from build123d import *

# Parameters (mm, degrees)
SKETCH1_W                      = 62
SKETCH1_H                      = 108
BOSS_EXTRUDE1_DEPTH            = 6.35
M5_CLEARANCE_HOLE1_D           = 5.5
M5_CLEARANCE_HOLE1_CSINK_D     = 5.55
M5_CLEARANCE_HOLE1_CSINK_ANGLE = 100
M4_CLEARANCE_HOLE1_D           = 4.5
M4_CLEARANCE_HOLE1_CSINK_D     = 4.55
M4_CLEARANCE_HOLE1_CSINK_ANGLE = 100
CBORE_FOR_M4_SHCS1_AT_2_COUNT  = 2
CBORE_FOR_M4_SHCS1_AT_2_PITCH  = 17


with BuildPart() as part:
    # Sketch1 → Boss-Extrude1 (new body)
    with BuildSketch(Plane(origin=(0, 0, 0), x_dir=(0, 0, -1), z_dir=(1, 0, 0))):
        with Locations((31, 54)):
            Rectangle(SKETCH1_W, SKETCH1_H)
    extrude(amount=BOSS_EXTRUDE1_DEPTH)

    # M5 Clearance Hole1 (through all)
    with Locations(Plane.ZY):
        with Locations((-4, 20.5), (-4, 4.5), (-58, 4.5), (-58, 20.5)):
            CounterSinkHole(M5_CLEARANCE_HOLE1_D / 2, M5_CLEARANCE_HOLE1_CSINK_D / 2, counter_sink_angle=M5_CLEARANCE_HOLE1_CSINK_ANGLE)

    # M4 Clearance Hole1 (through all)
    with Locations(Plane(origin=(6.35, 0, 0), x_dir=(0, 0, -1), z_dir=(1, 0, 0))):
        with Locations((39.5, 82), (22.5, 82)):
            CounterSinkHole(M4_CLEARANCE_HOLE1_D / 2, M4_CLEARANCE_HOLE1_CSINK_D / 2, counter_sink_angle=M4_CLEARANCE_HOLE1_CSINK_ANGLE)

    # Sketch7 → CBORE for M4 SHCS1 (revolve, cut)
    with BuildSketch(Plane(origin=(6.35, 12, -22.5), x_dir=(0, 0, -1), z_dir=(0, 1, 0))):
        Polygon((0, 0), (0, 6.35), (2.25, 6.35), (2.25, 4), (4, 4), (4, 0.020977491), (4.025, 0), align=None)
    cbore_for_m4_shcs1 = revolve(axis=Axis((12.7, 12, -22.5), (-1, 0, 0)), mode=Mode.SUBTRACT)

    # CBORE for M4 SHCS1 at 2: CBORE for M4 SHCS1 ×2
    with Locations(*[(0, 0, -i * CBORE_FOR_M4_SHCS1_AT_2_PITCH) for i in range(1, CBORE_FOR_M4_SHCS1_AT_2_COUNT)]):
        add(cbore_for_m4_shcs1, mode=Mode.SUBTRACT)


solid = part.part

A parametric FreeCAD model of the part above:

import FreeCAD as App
import Part
import Sketcher
from FreeCAD import Vector
Q = App.Units.Quantity


def add_polygon(sketch, points):
    """Adds a closed chain of lines whose ends are joined by coincident constraints."""
    first, n = sketch.GeometryCount, len(points)
    for a, b in zip(points, points[1:] + points[:1]):
        sketch.addGeometry(Part.LineSegment(App.Vector(*a, 0), App.Vector(*b, 0)), False)
    for i in range(n):
        sketch.addConstraint(Sketcher.Constraint("Coincident", first + i, 2, first + (i + 1) % n, 1))

doc = App.newDocument("Part")
body = doc.addObject("PartDesign::Body", "Body")

# Sketch on YZ plane
sketch1 = body.newObject("Sketcher::SketchObject", "Sketch")
sketch1.AttachmentSupport = (doc.getObject("YZ_Plane"), [""])
sketch1.MapMode = "FlatFace"
add_polygon(sketch1, [(108, 0), (0, 0), (0, -62), (108, -62)])  # lines 0-3
sketch1.addConstraint([
    Sketcher.Constraint("Horizontal", 0),
    Sketcher.Constraint("Vertical", 1),
    Sketcher.Constraint("Horizontal", 2),
    Sketcher.Constraint("Vertical", 3),
    Sketcher.Constraint("Coincident", 0, 2, -1, 1),
    Sketcher.Constraint("DistanceX", 0, 2, 0, 1, 108.0),
    Sketcher.Constraint("DistanceY", 1, 2, 1, 1, 62.0),
])
pad1 = body.newObject("PartDesign::Pad", "Pad")
pad1.Profile = sketch1
pad1.Length = 6.35

# Sketch on YZ plane
sketch2 = body.newObject("Sketcher::SketchObject", "Sketch001")
sketch2.AttachmentSupport = (doc.getObject("YZ_Plane"), [""])
sketch2.MapMode = "FlatFace"
sketch2.addGeometry([
    Part.Circle(Vector(20.5, -4, 0), Vector(0, 0, 1), 2.8),
    Part.Circle(Vector(4.5, -4, 0), Vector(0, 0, 1), 2.8),
    Part.Circle(Vector(4.5, -58, 0), Vector(0, 0, 1), 2.8),
    Part.Circle(Vector(20.5, -58, 0), Vector(0, 0, 1), 2.8),
], False)
sketch2.addConstraint([
    Sketcher.Constraint("Equal", 0, 1),
    Sketcher.Constraint("Equal", 1, 2),
    Sketcher.Constraint("Equal", 2, 3),
    Sketcher.Constraint("Horizontal", 0, 3, 1, 3),
    Sketcher.Constraint("Horizontal", 2, 3, 3, 3),
    Sketcher.Constraint("Vertical", 1, 3, 2, 3),
    Sketcher.Constraint("Vertical", 0, 3, 3, 3),
    Sketcher.Constraint("Diameter", 0, 5.5),
    Sketcher.Constraint("DistanceY", 0, 3, -1, 1, 4.0),
    Sketcher.Constraint("DistanceY", 2, 3, -1, 1, 58.0),
    Sketcher.Constraint("DistanceX", 1, 3, 0, 3, 16.0),
    Sketcher.Constraint("DistanceX", -1, 1, 0, 3, 20.5),
])
doc.recompute()
hole = body.newObject("PartDesign::Hole", "Hole")
hole.Profile = sketch2
hole.ThreadType = "None"
hole.Diameter = 5.5
hole.DepthType = "ThroughAll"
hole.HoleCutType = "Countersink"
hole.HoleCutDiameter = 5.55
hole.HoleCutCountersinkAngle = 100
hole.Reversed = True

# Sketch on YZ plane
sketch3 = body.newObject("Sketcher::SketchObject", "Sketch002")
sketch3.AttachmentSupport = (doc.getObject("YZ_Plane"), [""])
sketch3.MapMode = "FlatFace"
sketch3.AttachmentOffset = App.Placement(Vector(0, 0, 6.35), App.Rotation())
sketch3.addGeometry([
    Part.Circle(Vector(82, -39.5, 0), Vector(0, 0, 1), 2.2),
    Part.Circle(Vector(82, -22.5, 0), Vector(0, 0, 1), 2.2),
], False)
sketch3.addConstraint([
    Sketcher.Constraint("Equal", 0, 1),
    Sketcher.Constraint("Vertical", 0, 3, 1, 3),
    Sketcher.Constraint("Diameter", 0, 4.5),
    Sketcher.Constraint("DistanceX", -1, 1, 0, 3, 82.0),
    Sketcher.Constraint("DistanceY", 0, 3, 1, 3, 17.0),
    Sketcher.Constraint("DistanceY", 0, 3, -1, 1, 39.5),
])
doc.recompute()
hole2 = body.newObject("PartDesign::Hole", "Hole001")
hole2.Profile = sketch3
hole2.ThreadType = "None"
hole2.Diameter = 4.5
hole2.DepthType = "ThroughAll"
hole2.HoleCutType = "Countersink"
hole2.HoleCutDiameter = 4.55
hole2.HoleCutCountersinkAngle = 100

# Sketch on XZ plane
sketch4 = body.newObject("Sketcher::SketchObject", "Sketch003")
sketch4.AttachmentSupport = (doc.getObject("XZ_Plane"), [""])
sketch4.MapMode = "FlatFace"
sketch4.AttachmentOffset = App.Placement(Vector(0, 0, -12), App.Rotation())
add_polygon(sketch4, [(0, -22.5), (6.35, -22.5), (6.35, -26.525), (6.329, -26.5), (2.35, -26.5), (2.35, -24.75), (0, -24.75)])  # lines 0-6
sketch4.addGeometry(Part.LineSegment(Vector(6.35, -22.5, 0), Vector(0, -22.5, 0)), True)  # axis
sketch4.addConstraint([
    Sketcher.Constraint("Horizontal", 0),
    Sketcher.Constraint("Vertical", 1),
    Sketcher.Constraint("Horizontal", 3),
    Sketcher.Constraint("Vertical", 4),
    Sketcher.Constraint("Horizontal", 5),
    Sketcher.Constraint("Vertical", 6),
    Sketcher.Constraint("Horizontal", 7),
    Sketcher.Constraint("Coincident", 7, 1, 0, 2),
    Sketcher.Constraint("PointOnObject", 5, 2, -2),
    Sketcher.Constraint("PointOnObject", 7, 2, -2),
    Sketcher.Constraint("Angle", 2, Q("130 deg")),
    Sketcher.Constraint("DistanceY", 2, 2, 0, 2, 4.0),
    Sketcher.Constraint("DistanceX", 3, 2, 1, 2, 4.0),
    Sketcher.Constraint("DistanceX", 0, 1, 0, 2, 6.35),
    Sketcher.Constraint("DistanceY", 4, 1, 4, 2, 1.75),
    Sketcher.Constraint("DistanceY", 0, 2, -1, 1, 22.5),
    Sketcher.Constraint("DistanceY", 1, 2, 1, 1, 4.025),
])
groove = body.newObject("PartDesign::Groove", "Groove")
groove.Profile = sketch4
groove.ReferenceAxis = (sketch4, ["Axis0"])
groove.Angle = 360
doc.recompute()

linearpattern = body.newObject("PartDesign::LinearPattern", "LinearPattern")
linearpattern.Originals = [groove]
linearpattern.Direction = (doc.getObject("Z_Axis"), [""])
linearpattern.Mode = "offset"
linearpattern.Offset = 17
linearpattern.Occurrences = 2
linearpattern.Reversed = True
body.Tip = linearpattern

doc.recompute()
